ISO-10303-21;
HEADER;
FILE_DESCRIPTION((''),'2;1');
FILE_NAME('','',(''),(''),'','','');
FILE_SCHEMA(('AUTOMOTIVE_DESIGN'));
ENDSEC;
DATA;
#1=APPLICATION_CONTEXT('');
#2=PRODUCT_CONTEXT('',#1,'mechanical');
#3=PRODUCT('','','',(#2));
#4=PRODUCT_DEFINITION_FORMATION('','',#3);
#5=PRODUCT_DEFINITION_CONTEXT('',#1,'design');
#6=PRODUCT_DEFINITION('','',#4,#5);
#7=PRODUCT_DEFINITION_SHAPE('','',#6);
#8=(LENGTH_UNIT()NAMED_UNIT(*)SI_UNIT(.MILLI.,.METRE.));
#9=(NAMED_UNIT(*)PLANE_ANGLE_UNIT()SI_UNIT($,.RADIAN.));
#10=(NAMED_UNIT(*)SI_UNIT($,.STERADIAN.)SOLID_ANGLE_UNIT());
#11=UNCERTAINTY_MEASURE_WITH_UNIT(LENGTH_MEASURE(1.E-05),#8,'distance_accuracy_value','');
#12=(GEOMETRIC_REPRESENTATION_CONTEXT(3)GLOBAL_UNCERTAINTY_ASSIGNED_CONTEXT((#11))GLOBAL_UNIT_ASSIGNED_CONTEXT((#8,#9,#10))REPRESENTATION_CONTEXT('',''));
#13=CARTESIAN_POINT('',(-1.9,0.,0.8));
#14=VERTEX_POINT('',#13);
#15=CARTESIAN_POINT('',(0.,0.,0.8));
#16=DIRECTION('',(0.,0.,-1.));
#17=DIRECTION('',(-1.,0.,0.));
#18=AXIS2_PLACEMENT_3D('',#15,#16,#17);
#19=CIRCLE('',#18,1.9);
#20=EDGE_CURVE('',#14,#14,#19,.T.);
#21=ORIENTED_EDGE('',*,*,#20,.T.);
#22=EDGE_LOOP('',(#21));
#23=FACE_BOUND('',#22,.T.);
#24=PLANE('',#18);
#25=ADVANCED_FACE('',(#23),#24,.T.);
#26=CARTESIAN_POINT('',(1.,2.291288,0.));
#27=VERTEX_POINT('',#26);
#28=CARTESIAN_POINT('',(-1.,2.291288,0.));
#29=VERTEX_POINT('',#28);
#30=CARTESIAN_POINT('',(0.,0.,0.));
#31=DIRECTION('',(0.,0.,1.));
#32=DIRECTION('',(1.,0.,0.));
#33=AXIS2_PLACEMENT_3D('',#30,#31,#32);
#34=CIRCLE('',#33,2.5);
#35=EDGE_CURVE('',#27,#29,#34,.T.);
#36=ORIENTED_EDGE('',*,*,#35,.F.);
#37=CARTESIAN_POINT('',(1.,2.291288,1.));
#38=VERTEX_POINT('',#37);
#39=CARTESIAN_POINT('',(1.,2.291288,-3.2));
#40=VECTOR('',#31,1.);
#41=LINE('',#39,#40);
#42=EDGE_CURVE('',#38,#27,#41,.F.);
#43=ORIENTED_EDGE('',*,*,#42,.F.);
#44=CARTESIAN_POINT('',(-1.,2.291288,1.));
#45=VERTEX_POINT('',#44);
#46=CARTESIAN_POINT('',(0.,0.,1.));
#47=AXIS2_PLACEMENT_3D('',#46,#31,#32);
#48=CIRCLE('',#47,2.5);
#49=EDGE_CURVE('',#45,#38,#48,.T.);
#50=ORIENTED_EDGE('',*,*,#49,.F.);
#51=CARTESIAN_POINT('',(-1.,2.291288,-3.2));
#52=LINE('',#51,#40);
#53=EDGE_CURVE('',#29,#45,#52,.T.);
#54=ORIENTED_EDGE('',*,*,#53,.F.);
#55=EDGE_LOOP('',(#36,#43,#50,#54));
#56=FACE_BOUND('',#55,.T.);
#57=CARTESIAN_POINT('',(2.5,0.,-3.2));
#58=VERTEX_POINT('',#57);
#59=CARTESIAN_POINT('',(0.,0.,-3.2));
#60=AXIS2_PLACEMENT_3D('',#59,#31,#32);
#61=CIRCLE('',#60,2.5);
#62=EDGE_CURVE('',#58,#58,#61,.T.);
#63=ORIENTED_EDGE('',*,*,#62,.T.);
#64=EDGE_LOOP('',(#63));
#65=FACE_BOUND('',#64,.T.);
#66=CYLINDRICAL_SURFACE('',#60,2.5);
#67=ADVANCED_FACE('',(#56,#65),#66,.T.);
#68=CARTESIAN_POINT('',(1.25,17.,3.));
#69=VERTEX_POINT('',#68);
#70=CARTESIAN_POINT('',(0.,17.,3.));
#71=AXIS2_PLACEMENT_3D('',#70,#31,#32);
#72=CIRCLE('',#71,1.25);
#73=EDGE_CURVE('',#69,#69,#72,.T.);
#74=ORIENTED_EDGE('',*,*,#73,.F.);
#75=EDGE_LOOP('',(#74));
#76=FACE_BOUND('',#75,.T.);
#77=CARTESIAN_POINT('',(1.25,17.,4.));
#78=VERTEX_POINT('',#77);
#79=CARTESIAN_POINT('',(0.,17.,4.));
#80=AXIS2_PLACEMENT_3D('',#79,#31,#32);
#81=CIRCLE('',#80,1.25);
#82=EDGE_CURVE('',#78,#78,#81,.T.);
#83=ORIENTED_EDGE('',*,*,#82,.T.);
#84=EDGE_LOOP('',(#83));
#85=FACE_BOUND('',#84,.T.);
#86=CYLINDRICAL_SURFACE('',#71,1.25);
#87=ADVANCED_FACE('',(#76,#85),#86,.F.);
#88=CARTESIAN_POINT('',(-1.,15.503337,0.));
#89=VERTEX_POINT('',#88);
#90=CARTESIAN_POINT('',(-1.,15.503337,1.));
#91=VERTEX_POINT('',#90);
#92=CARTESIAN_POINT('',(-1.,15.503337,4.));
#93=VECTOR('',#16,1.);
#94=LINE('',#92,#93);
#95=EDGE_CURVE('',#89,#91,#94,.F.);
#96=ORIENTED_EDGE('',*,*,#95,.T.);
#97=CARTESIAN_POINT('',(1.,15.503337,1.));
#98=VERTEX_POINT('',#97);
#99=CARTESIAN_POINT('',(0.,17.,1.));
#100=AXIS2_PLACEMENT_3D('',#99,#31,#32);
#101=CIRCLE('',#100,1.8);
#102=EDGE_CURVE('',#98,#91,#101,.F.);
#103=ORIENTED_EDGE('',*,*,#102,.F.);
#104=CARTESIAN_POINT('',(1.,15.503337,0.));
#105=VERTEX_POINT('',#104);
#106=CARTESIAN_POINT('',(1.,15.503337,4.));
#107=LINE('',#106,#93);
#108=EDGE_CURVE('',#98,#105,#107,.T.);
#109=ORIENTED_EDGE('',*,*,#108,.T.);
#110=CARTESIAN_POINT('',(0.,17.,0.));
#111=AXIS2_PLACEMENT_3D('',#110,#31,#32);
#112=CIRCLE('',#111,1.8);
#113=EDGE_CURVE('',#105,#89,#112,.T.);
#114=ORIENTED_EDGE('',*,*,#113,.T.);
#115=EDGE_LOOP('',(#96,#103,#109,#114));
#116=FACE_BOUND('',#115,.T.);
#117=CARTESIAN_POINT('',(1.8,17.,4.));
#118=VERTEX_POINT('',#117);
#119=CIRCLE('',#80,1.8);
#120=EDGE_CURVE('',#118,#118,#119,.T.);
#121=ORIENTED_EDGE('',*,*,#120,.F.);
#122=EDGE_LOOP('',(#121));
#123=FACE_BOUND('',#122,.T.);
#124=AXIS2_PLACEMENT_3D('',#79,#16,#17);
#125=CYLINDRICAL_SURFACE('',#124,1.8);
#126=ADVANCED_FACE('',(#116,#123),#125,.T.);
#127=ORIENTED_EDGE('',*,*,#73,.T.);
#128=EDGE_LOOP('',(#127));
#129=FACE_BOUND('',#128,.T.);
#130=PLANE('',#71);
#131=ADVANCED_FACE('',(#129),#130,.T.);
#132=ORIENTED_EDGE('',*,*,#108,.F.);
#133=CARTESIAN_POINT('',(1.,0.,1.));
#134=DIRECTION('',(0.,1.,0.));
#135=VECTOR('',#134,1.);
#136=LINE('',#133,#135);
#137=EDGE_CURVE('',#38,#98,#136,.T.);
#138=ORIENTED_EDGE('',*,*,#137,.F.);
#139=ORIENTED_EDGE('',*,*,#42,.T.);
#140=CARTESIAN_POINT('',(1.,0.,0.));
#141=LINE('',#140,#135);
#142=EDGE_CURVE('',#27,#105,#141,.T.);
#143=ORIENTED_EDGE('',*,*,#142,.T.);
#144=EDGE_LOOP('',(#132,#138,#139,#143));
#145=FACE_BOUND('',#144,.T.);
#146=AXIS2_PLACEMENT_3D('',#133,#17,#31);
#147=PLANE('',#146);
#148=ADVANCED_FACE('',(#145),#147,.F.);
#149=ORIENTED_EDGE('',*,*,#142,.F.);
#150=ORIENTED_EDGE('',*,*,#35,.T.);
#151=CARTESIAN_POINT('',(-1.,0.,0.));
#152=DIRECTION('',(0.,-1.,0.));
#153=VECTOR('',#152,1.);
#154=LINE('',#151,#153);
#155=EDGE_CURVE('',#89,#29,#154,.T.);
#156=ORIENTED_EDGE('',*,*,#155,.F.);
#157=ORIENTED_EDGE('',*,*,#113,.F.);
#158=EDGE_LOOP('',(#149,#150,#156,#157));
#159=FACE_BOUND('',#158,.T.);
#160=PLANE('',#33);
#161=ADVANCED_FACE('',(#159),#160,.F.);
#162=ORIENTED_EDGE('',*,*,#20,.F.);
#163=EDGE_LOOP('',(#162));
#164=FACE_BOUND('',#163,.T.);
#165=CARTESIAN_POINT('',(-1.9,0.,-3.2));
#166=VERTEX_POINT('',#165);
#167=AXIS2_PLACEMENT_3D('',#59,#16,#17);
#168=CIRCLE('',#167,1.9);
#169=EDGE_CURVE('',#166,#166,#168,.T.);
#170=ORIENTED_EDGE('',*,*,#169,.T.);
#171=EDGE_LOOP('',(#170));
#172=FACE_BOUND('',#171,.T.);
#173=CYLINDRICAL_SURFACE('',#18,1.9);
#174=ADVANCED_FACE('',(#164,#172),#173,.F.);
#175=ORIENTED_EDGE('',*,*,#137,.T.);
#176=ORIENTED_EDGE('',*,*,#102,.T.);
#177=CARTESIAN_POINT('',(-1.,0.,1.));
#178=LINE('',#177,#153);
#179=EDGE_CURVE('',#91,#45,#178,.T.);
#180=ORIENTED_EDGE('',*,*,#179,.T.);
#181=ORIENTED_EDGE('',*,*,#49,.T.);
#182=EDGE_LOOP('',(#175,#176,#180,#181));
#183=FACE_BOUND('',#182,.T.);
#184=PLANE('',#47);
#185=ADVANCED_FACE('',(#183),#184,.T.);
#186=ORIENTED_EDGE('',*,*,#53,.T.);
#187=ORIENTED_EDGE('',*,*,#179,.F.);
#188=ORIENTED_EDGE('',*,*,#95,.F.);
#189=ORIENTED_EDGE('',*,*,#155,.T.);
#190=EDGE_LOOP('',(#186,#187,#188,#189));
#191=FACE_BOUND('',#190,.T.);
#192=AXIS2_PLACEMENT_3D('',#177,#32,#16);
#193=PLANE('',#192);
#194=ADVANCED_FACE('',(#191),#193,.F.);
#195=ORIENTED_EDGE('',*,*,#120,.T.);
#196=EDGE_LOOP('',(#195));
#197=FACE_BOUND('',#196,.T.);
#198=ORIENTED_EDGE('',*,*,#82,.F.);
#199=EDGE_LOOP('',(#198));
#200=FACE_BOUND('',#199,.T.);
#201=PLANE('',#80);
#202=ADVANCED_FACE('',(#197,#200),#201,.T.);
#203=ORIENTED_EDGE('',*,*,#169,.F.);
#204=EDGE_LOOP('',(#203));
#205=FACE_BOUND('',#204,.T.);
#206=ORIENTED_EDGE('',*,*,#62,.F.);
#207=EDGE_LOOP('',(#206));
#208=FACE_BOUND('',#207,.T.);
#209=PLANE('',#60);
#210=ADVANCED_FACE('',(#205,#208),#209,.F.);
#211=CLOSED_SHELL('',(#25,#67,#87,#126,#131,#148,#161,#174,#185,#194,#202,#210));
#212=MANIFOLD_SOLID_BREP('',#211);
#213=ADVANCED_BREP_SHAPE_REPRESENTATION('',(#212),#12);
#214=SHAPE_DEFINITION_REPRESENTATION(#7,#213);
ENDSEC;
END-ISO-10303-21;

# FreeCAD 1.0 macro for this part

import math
import FreeCAD as App
import Part
import Sketcher
Q = App.Units.Quantity

doc = App.newDocument("Part")
params = doc.addObject("Spreadsheet::Sheet", "Params")
for row, (alias, value) in enumerate([
    ("sketch1_radius", "1 mm"),
    ("sketch1_height", "17 mm"),
    ("pad1_length", "1 mm"),
    ("sketch2_diameter", "3.6 mm"),
    ("pad2_length", "4 mm"),
    ("sketch3_diameter", "2.5 mm"),
    ("pocket1_length", "1 mm"),
    ("sketch4_diameter", "5 mm"),
    ("pad3_length", "4.2 mm"),
    ("sketch5_diameter", "3.8 mm"),
    ("pocket2_length", "4 mm"),
], start=1):
    params.set(f"A{row}", alias)
    params.set(f"B{row}", "=" + value)
    params.setAlias(f"B{row}", alias)

body = doc.addObject("PartDesign::Body", "Body")

# Sketch on XY plane
sketch1 = body.newObject("Sketcher::SketchObject", "Sketch")
sketch1.AttachmentSupport = (doc.getObject("XY_Plane"), [""])
sketch1.MapMode = "FlatFace"
sketch1.addGeometry(Part.LineSegment(App.Vector(-1, 17, 0), App.Vector(-1, 0, 0)), False)
sketch1.addGeometry(Part.ArcOfCircle(Part.Circle(App.Vector(0, 0, 0), App.Vector(0, 0, 1), 1), math.radians(180), math.radians(360)), False)
sketch1.addGeometry(Part.LineSegment(App.Vector(1, 0, 0), App.Vector(1, 17, 0)), False)
sketch1.addGeometry(Part.ArcOfCircle(Part.Circle(App.Vector(0, 17, 0), App.Vector(0, 0, 1), 1), math.radians(0), math.radians(180)), False)
sketch1.addConstraint(Sketcher.Constraint("Tangent", 0, 2, 1, 1))
sketch1.addConstraint(Sketcher.Constraint("Tangent", 1, 2, 2, 1))
sketch1.addConstraint(Sketcher.Constraint("Tangent", 2, 2, 3, 1))
sketch1.addConstraint(Sketcher.Constraint("Tangent", 3, 2, 0, 1))
sketch1.addConstraint(Sketcher.Constraint("Vertical", 0))
sketch1.addConstraint(Sketcher.Constraint("Vertical", 2))
sketch1.addConstraint(Sketcher.Constraint("Coincident", 1, 3, -1, 1))
sketch1.addConstraint(Sketcher.Constraint("Radius", 1, Q("1 mm")))
sketch1.addConstraint(Sketcher.Constraint("DistanceY", 0, 2, 0, 1, Q("17 mm")))
sketch1.setExpression("Constraints[7]", "Params.sketch1_radius")
sketch1.setExpression("Constraints[8]", "Params.sketch1_height")
pad1 = body.newObject("PartDesign::Pad", "Pad")
pad1.Profile = sketch1
pad1.setExpression("Length", "Params.pad1_length")

# Sketch on XY plane
sketch2 = body.newObject("Sketcher::SketchObject", "Sketch001")
sketch2.AttachmentSupport = (doc.getObject("XY_Plane"), [""])
sketch2.MapMode = "FlatFace"
sketch2.addGeometry(Part.Circle(App.Vector(0, 17, 0), App.Vector(0, 0, 1), 1.8), False)
sketch2.addConstraint(Sketcher.Constraint("PointOnObject", 0, 3, -2))
sketch2.addConstraint(Sketcher.Constraint("Diameter", 0, Q("3.6 mm")))
sketch2.addConstraint(Sketcher.Constraint("DistanceY", -1, 1, 0, 3, Q("17 mm")))
sketch2.setExpression("Constraints[1]", "Params.sketch2_diameter")
pad2 = body.newObject("PartDesign::Pad", "Pad001")
pad2.Profile = sketch2
pad2.setExpression("Length", "Params.pad2_length")

# Sketch on XY plane
sketch3 = body.newObject("Sketcher::SketchObject", "Sketch002")
sketch3.AttachmentSupport = (doc.getObject("XY_Plane"), [""])
sketch3.MapMode = "FlatFace"
sketch3.AttachmentOffset = App.Placement(App.Vector(0, 0, 4), App.Rotation())
sketch3.addGeometry(Part.Circle(App.Vector(0, 17, 0), App.Vector(0, 0, 1), 1.2), False)
sketch3.addConstraint(Sketcher.Constraint("PointOnObject", 0, 3, -2))
sketch3.addConstraint(Sketcher.Constraint("Diameter", 0, Q("2.5 mm")))
sketch3.addConstraint(Sketcher.Constraint("DistanceY", -1, 1, 0, 3, Q("17 mm")))
sketch3.setExpression("Constraints[1]", "Params.sketch3_diameter")
pocket1 = body.newObject("PartDesign::Pocket", "Pocket")
pocket1.Profile = sketch3
pocket1.setExpression("Length", "Params.pocket1_length")

# Sketch on XY plane
sketch4 = body.newObject("Sketcher::SketchObject", "Sketch003")
sketch4.AttachmentSupport = (doc.getObject("XY_Plane"), [""])
sketch4.MapMode = "FlatFace"
sketch4.AttachmentOffset = App.Placement(App.Vector(0, 0, 1), App.Rotation())
sketch4.addGeometry(Part.Circle(App.Vector(0, 0, 0), App.Vector(0, 0, 1), 2.5), False)
sketch4.addConstraint(Sketcher.Constraint("Coincident", 0, 3, -1, 1))
sketch4.addConstraint(Sketcher.Constraint("Diameter", 0, Q("5 mm")))
sketch4.setExpression("Constraints[1]", "Params.sketch4_diameter")
pad3 = body.newObject("PartDesign::Pad", "Pad002")
pad3.Profile = sketch4
pad3.setExpression("Length", "Params.pad3_length")
pad3.Reversed = True

# Sketch on XY plane
sketch5 = body.newObject("Sketcher::SketchObject", "Sketch004")
sketch5.AttachmentSupport = (doc.getObject("XY_Plane"), [""])
sketch5.MapMode = "FlatFace"
sketch5.AttachmentOffset = App.Placement(App.Vector(0, 0, -3.2), App.Rotation())
sketch5.addGeometry(Part.Circle(App.Vector(0, 0, 0), App.Vector(0, 0, 1), 1.9), False)
sketch5.addConstraint(Sketcher.Constraint("Coincident", 0, 3, -1, 1))
sketch5.addConstraint(Sketcher.Constraint("Diameter", 0, Q("3.8 mm")))
sketch5.setExpression("Constraints[1]", "Params.sketch5_diameter")
pocket2 = body.newObject("PartDesign::Pocket", "Pocket001")
pocket2.Profile = sketch5
pocket2.setExpression("Length", "Params.pocket2_length")
pocket2.Reversed = True

doc.recompute()
